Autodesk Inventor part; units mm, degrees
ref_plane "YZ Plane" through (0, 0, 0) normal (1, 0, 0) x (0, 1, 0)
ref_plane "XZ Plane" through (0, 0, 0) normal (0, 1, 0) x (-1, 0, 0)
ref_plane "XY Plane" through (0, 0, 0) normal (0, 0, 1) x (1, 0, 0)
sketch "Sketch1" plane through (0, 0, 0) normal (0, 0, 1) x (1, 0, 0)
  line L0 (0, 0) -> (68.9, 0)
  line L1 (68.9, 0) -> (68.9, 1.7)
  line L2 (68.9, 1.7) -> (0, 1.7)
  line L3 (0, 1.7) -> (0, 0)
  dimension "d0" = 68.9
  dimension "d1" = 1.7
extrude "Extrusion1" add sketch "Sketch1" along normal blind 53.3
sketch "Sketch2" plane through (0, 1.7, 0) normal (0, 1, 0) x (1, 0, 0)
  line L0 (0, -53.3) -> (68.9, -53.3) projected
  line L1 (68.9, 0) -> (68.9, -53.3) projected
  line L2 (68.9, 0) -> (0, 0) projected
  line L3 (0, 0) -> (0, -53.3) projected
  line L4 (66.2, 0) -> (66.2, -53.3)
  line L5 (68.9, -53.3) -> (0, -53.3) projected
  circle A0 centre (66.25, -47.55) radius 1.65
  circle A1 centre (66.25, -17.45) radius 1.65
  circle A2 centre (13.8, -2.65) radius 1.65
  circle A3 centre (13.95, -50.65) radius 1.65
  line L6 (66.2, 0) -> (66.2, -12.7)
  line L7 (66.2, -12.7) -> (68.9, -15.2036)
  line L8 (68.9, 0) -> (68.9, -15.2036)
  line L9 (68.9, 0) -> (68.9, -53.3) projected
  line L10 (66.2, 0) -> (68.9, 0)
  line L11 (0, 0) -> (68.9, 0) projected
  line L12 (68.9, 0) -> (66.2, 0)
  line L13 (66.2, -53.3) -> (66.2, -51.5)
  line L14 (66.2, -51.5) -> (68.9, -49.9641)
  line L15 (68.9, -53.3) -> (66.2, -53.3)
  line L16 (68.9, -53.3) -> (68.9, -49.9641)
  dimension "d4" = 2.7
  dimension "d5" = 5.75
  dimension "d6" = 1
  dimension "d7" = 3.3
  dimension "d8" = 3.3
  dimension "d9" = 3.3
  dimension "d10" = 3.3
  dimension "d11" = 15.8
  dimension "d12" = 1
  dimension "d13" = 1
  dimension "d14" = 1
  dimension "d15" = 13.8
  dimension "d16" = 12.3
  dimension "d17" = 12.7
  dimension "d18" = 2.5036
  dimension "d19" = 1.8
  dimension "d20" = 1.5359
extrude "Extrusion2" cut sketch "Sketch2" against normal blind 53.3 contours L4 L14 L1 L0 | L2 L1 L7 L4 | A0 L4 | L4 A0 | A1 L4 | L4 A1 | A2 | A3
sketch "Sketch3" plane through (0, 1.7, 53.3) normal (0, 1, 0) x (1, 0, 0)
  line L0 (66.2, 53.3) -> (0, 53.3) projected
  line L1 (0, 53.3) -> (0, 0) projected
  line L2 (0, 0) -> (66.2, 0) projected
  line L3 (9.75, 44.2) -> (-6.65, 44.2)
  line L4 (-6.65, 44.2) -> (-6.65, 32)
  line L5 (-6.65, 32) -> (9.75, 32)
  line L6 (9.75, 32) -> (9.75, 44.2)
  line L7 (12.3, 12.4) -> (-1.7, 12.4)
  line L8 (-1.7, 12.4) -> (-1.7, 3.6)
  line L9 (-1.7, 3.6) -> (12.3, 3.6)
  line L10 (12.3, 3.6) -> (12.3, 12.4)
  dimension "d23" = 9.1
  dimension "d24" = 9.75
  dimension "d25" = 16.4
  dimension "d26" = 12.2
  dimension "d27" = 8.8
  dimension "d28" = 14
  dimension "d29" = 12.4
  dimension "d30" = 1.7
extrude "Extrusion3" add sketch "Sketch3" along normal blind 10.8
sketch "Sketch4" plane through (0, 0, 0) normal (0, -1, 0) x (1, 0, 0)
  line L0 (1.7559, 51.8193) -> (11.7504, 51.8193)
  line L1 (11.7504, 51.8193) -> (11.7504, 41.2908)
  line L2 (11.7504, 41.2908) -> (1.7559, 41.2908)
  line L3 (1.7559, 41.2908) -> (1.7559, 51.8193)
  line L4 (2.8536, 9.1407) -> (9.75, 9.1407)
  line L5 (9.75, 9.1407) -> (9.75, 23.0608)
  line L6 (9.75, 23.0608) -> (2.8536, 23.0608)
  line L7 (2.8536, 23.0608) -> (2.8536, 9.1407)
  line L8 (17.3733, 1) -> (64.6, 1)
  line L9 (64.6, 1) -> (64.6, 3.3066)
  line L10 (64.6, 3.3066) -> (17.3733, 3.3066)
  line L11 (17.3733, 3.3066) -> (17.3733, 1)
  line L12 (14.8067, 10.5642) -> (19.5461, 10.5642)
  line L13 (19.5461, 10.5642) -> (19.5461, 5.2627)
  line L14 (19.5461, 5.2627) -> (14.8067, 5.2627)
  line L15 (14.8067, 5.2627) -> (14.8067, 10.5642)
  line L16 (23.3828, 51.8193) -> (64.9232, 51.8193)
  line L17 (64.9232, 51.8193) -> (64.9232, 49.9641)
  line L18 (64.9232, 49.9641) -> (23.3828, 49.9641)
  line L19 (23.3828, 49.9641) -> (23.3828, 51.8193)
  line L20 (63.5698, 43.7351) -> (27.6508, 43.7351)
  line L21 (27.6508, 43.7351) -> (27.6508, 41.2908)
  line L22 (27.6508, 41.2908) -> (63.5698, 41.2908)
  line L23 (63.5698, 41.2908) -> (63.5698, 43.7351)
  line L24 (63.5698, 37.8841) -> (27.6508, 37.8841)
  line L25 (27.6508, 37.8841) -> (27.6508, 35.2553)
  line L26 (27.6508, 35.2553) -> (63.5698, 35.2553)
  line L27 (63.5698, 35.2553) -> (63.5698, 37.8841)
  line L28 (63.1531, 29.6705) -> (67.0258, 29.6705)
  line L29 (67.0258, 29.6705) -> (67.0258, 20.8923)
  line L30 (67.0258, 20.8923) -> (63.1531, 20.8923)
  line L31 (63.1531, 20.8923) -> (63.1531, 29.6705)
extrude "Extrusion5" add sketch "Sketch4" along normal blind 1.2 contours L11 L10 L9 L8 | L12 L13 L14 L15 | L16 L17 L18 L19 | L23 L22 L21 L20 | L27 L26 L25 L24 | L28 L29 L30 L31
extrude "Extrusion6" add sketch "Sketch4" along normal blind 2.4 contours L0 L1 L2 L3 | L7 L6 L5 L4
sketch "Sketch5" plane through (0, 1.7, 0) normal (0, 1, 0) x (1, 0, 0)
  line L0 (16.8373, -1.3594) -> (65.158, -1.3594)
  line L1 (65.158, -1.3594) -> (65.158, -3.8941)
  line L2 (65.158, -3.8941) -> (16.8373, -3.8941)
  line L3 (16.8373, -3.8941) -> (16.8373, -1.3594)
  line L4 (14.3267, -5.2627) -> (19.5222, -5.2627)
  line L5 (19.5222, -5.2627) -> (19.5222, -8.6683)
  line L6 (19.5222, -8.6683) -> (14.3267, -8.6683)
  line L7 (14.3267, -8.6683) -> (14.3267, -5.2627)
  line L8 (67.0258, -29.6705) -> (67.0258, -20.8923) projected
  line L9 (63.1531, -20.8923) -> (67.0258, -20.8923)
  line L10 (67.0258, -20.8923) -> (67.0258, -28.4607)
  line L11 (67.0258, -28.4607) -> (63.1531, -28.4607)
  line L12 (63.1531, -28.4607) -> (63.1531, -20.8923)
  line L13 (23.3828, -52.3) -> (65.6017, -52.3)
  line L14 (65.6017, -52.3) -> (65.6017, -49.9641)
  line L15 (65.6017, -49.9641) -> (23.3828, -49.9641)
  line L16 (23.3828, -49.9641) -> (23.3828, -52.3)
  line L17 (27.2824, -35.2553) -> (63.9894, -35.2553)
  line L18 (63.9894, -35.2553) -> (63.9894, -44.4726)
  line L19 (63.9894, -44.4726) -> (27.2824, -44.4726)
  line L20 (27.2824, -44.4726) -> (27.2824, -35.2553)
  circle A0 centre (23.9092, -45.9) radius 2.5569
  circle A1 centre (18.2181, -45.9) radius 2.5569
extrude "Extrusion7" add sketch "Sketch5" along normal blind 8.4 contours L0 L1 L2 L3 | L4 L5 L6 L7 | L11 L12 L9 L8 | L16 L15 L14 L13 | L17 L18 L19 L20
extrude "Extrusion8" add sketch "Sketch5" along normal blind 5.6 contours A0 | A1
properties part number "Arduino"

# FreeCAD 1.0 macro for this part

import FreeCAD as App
import Part
import Sketcher
from FreeCAD import Vector
Q = App.Units.Quantity


def add_polygon(sketch, points):
    """Adds a closed chain of lines whose ends are joined by coincident constraints."""
    first, n = sketch.GeometryCount, len(points)
    for a, b in zip(points, points[1:] + points[:1]):
        sketch.addGeometry(Part.LineSegment(App.Vector(*a, 0), App.Vector(*b, 0)), False)
    for i in range(n):
        sketch.addConstraint(Sketcher.Constraint("Coincident", first + i, 2, first + (i + 1) % n, 1))

doc = App.newDocument("Part")
body = doc.addObject("PartDesign::Body", "Body")

# Sketch on XY plane
sketch1 = body.newObject("Sketcher::SketchObject", "Sketch")
sketch1.AttachmentSupport = (doc.getObject("XY_Plane"), [""])
sketch1.MapMode = "FlatFace"
add_polygon(sketch1, [(0, 1.7), (0, 0), (68.9, 0), (68.9, 1.7)])  # lines 0-3
sketch1.addConstraint(Sketcher.Constraint("Vertical", 0))
sketch1.addConstraint(Sketcher.Constraint("Horizontal", 1))
sketch1.addConstraint(Sketcher.Constraint("Vertical", 2))
sketch1.addConstraint(Sketcher.Constraint("Horizontal", 3))
sketch1.addConstraint(Sketcher.Constraint("Coincident", 0, 2, -1, 1))
sketch1.addConstraint(Sketcher.Constraint("DistanceX", 1, 1, 1, 2, Q("68.9 mm")))
sketch1.addConstraint(Sketcher.Constraint("DistanceY", 0, 2, 0, 1, Q("1.7 mm")))
pad1 = body.newObject("PartDesign::Pad", "Pad")
pad1.Profile = sketch1
pad1.Length = 53.3

# Sketch on XZ plane
sketch2 = body.newObject("Sketcher::SketchObject", "Sketch001")
sketch2.AttachmentSupport = (doc.getObject("XZ_Plane"), [""])
sketch2.MapMode = "FlatFace"
sketch2.AttachmentOffset = App.Placement(Vector(0, 0, -1.7), App.Rotation())
add_polygon(sketch2, [(66.2, 51.5), (66.2, 53.3), (68.9, 53.3), (68.9, 50)])  # lines 0-3
add_polygon(sketch2, [(68.9, 0), (66.2, 0), (66.2, 12.7), (68.9, 15.2)])  # lines 4-7
sketch2.addGeometry(Part.Circle(Vector(66.2, 47.5, 0), Vector(0, 0, 1), 1.6), False)  # 8
sketch2.addGeometry(Part.Circle(Vector(66.2, 17.4, 0), Vector(0, 0, 1), 1.6), False)  # 9
sketch2.addGeometry(Part.Circle(Vector(13.8, 2.6, 0), Vector(0, 0, 1), 1.6), False)  # 10
sketch2.addGeometry(Part.Circle(Vector(13.9, 50.6, 0), Vector(0, 0, 1), 1.6), False)  # 11
sketch2.addConstraint(Sketcher.Constraint("Vertical", 0))
sketch2.addConstraint(Sketcher.Constraint("Horizontal", 1))
sketch2.addConstraint(Sketcher.Constraint("Vertical", 2))
sketch2.addConstraint(Sketcher.Constraint("Horizontal", 4))
sketch2.addConstraint(Sketcher.Constraint("Vertical", 5))
sketch2.addConstraint(Sketcher.Constraint("Vertical", 7))
sketch2.addConstraint(Sketcher.Constraint("Equal", 8, 9))
sketch2.addConstraint(Sketcher.Constraint("Equal", 9, 10))
sketch2.addConstraint(Sketcher.Constraint("Equal", 10, 11))
sketch2.addConstraint(Sketcher.Constraint("PointOnObject", 4, 2, -1))
sketch2.addConstraint(Sketcher.Constraint("Vertical", 8, 3, 9, 3))
sketch2.addConstraint(Sketcher.Constraint("Vertical", 3, 2, 4, 2))
sketch2.addConstraint(Sketcher.Constraint("Vertical", 2, 2, 6, 2))
sketch2.addConstraint(Sketcher.Constraint("Diameter", 8, Q("3.3 mm")))
sketch2.addConstraint(Sketcher.Constraint("DistanceX", 1, 1, 1, 2, Q("2.7 mm")))
sketch2.addConstraint(Sketcher.Constraint("DistanceY", 0, 1, 0, 2, Q("1.8 mm")))
sketch2.addConstraint(Sketcher.Constraint("DistanceY", 5, 1, 5, 2, Q("12.7 mm")))
sketch2.addConstraint(Sketcher.Constraint("DistanceX", -1, 1, 10, 3, Q("13.8 mm")))
sketch2.addConstraint(Sketcher.Constraint("DistanceY", 8, 3, 0, 2, Q("5.75 mm")))
sketch2.addConstraint(Sketcher.Constraint("DistanceY", 10, 3, 11, 3, Q("48 mm")))
sketch2.addConstraint(Sketcher.Constraint("DistanceY", 2, 2, 3, 2, Q("1.536 mm")))
sketch2.addConstraint(Sketcher.Constraint("DistanceX", -1, 1, 0, 2, Q("66.2 mm")))
sketch2.addConstraint(Sketcher.Constraint("DistanceY", -1, 1, 0, 2, Q("53.3 mm")))
sketch2.addConstraint(Sketcher.Constraint("DistanceY", 9, 3, 8, 3, Q("30.1 mm")))
sketch2.addConstraint(Sketcher.Constraint("DistanceY", 10, 3, 9, 3, Q("14.8 mm")))
sketch2.addConstraint(Sketcher.Constraint("DistanceX", 11, 3, 8, 3, Q("52.3 mm")))
sketch2.addConstraint(Sketcher.Constraint("DistanceY", 5, 2, 6, 2, Q("2.5036 mm")))
sketch2.addConstraint(Sketcher.Constraint("DistanceX", -1, 1, 8, 3, Q("66.25 mm")))
pocket1 = body.newObject("PartDesign::Pocket", "Pocket")
pocket1.Profile = sketch2
pocket1.Length = 53.3
pocket1.Reversed = True

# Sketch on XZ plane
sketch3 = body.newObject("Sketcher::SketchObject", "Sketch002")
sketch3.AttachmentSupport = (doc.getObject("XZ_Plane"), [""])
sketch3.MapMode = "FlatFace"
sketch3.AttachmentOffset = App.Placement(Vector(0, 0, -1.7), App.Rotation())
add_polygon(sketch3, [(10, 9), (-7, 9), (-7, 21), (10, 21)])  # lines 0-3
add_polygon(sketch3, [(12, 41), (-2, 41), (-2, 50), (12, 50)])  # lines 4-7
sketch3.addConstraint(Sketcher.Constraint("Horizontal", 0))
sketch3.addConstraint(Sketcher.Constraint("Vertical", 1))
sketch3.addConstraint(Sketcher.Constraint("Horizontal", 2))
sketch3.addConstraint(Sketcher.Constraint("Vertical", 3))
sketch3.addConstraint(Sketcher.Constraint("Horizontal", 4))
sketch3.addConstraint(Sketcher.Constraint("Vertical", 5))
sketch3.addConstraint(Sketcher.Constraint("Horizontal", 6))
sketch3.addConstraint(Sketcher.Constraint("Vertical", 7))
sketch3.addConstraint(Sketcher.Constraint("DistanceX", 4, 2, 4, 1, Q("14 mm")))
sketch3.addConstraint(Sketcher.Constraint("DistanceX", 0, 2, 0, 1, Q("16.4 mm")))
sketch3.addConstraint(Sketcher.Constraint("DistanceY", 1, 1, 1, 2, Q("12.2 mm")))
sketch3.addConstraint(Sketcher.Constraint("DistanceY", 5, 1, 5, 2, Q("8.8 mm")))
sketch3.addConstraint(Sketcher.Constraint("DistanceY", -1, 1, 0, 2, Q("9.1 mm")))
sketch3.addConstraint(Sketcher.Constraint("DistanceX", 4, 2, -1, 1, Q("1.7 mm")))
sketch3.addConstraint(Sketcher.Constraint("DistanceX", -1, 1, 2, 2, Q("9.75 mm")))
sketch3.addConstraint(Sketcher.Constraint("DistanceY", -1, 1, 4, 2, Q("40.9 mm")))
pad2 = body.newObject("PartDesign::Pad", "Pad001")
pad2.Profile = sketch3
pad2.Length = 10.8
pad2.Reversed = True

# Sketch on XZ plane
sketch4 = body.newObject("Sketcher::SketchObject", "Sketch003")
sketch4.AttachmentSupport = (doc.getObject("XZ_Plane"), [""])
sketch4.MapMode = "FlatFace"
add_polygon(sketch4, [(17.4, 3.3), (17.4, 1), (64.6, 1), (64.6, 3.3)])  # lines 0-3
add_polygon(sketch4, [(19.5, 10.6), (14.8, 10.6), (14.8, 5.3), (19.5, 5.3)])  # lines 4-7
add_polygon(sketch4, [(64.9, 51.8), (23.4, 51.8), (23.4, 50), (64.9, 50)])  # lines 8-11
add_polygon(sketch4, [(63.6, 41.3), (63.6, 43.7), (27.7, 43.7), (27.7, 41.3)])  # lines 12-15
add_polygon(sketch4, [(63.6, 35.3), (63.6, 37.9), (27.7, 37.9), (27.7, 35.3)])  # lines 16-19
add_polygon(sketch4, [(67, 29.7), (63.2, 29.7), (63.2, 20.9), (67, 20.9)])  # lines 20-23
sketch4.addConstraint(Sketcher.Constraint("Vertical", 0))
sketch4.addConstraint(Sketcher.Constraint("Horizontal", 1))
sketch4.addConstraint(Sketcher.Constraint("Vertical", 2))
sketch4.addConstraint(Sketcher.Constraint("Horizontal", 3))
sketch4.addConstraint(Sketcher.Constraint("Horizontal", 4))
sketch4.addConstraint(Sketcher.Constraint("Vertical", 5))
sketch4.addConstraint(Sketcher.Constraint("Horizontal", 6))
sketch4.addConstraint(Sketcher.Constraint("Vertical", 7))
sketch4.addConstraint(Sketcher.Constraint("Horizontal", 8))
sketch4.addConstraint(Sketcher.Constraint("Vertical", 9))
sketch4.addConstraint(Sketcher.Constraint("Horizontal", 10))
sketch4.addConstraint(Sketcher.Constraint("Vertical", 11))
sketch4.addConstraint(Sketcher.Constraint("Vertical", 12))
sketch4.addConstraint(Sketcher.Constraint("Horizontal", 13))
sketch4.addConstraint(Sketcher.Constraint("Vertical", 14))
sketch4.addConstraint(Sketcher.Constraint("Horizontal", 15))
sketch4.addConstraint(Sketcher.Constraint("Vertical", 16))
sketch4.addConstraint(Sketcher.Constraint("Horizontal", 17))
sketch4.addConstraint(Sketcher.Constraint("Vertical", 18))
sketch4.addConstraint(Sketcher.Constraint("Horizontal", 19))
sketch4.addConstraint(Sketcher.Constraint("Horizontal", 20))
sketch4.addConstraint(Sketcher.Constraint("Vertical", 21))
sketch4.addConstraint(Sketcher.Constraint("Horizontal", 22))
sketch4.addConstraint(Sketcher.Constraint("Vertical", 23))
sketch4.addConstraint(Sketcher.Constraint("Vertical", 15, 2, 16, 2))
sketch4.addConstraint(Sketcher.Constraint("Vertical", 14, 2, 17, 2))
sketch4.addConstraint(Sketcher.Constraint("DistanceY", -1, 1, 0, 2, Q("1 mm")))
sketch4.addConstraint(Sketcher.Constraint("DistanceX", -1, 1, 1, 2, Q("64.6 mm")))
sketch4.addConstraint(Sketcher.Constraint("DistanceY", 7, 2, 9, 2, Q("39.4 mm")))
sketch4.addConstraint(Sketcher.Constraint("DistanceX", 13, 2, 13, 1, Q("35.919 mm")))
sketch4.addConstraint(Sketcher.Constraint("DistanceY", 16, 2, 10, 2, Q("12.08 mm")))
sketch4.addConstraint(Sketcher.Constraint("DistanceX", 20, 2, 10, 2, Q("1.77 mm")))
sketch4.addConstraint(Sketcher.Constraint("DistanceX", 1, 1, 1, 2, Q("47.2267 mm")))
sketch4.addConstraint(Sketcher.Constraint("DistanceX", 4, 2, 4, 1, Q("4.7394 mm")))
sketch4.addConstraint(Sketcher.Constraint("DistanceX", 8, 2, 8, 1, Q("41.5404 mm")))
sketch4.addConstraint(Sketcher.Constraint("DistanceX", 20, 2, 20, 1, Q("3.8727 mm")))
sketch4.addConstraint(Sketcher.Constraint("DistanceY", 0, 2, 0, 1, Q("2.3066 mm")))
sketch4.addConstraint(Sketcher.Constraint("DistanceY", 5, 2, 5, 1, Q("5.3015 mm")))
sketch4.addConstraint(Sketcher.Constraint("DistanceY", 9, 2, 9, 1, Q("1.8552 mm")))
sketch4.addConstraint(Sketcher.Constraint("DistanceY", 12, 1, 12, 2, Q("2.4443 mm")))
sketch4.addConstraint(Sketcher.Constraint("DistanceY", 16, 1, 16, 2, Q("2.6288 mm")))
sketch4.addConstraint(Sketcher.Constraint("DistanceY", 21, 2, 21, 1, Q("8.7782 mm")))
sketch4.addConstraint(Sketcher.Constraint("DistanceX", -1, 1, 6, 2, Q("19.546 mm")))
sketch4.addConstraint(Sketcher.Constraint("DistanceY", -1, 1, 9, 2, Q("49.964 mm")))
sketch4.addConstraint(Sketcher.Constraint("DistanceY", -1, 1, 12, 2, Q("43.735 mm")))
sketch4.addConstraint(Sketcher.Constraint("DistanceX", -1, 1, 20, 2, Q("63.153 mm")))
sketch4.addConstraint(Sketcher.Constraint("DistanceX", 9, 2, 12, 2, Q("40.187 mm")))
sketch4.addConstraint(Sketcher.Constraint("DistanceY", 21, 2, 19, 2, Q("14.363 mm")))
pad3 = body.newObject("PartDesign::Pad", "Pad002")
pad3.Profile = sketch4
pad3.Length = 1.2

# Sketch on XZ plane
sketch5 = body.newObject("Sketcher::SketchObject", "Sketch004")
sketch5.AttachmentSupport = (doc.getObject("XZ_Plane"), [""])
sketch5.MapMode = "FlatFace"
add_polygon(sketch5, [(12, 52), (2, 52), (2, 41), (12, 41)])  # lines 0-3
add_polygon(sketch5, [(3, 23), (3, 9), (10, 9), (10, 23)])  # lines 4-7
sketch5.addConstraint(Sketcher.Constraint("Horizontal", 0))
sketch5.addConstraint(Sketcher.Constraint("Vertical", 1))
sketch5.addConstraint(Sketcher.Constraint("Horizontal", 2))
sketch5.addConstraint(Sketcher.Constraint("Vertical", 3))
sketch5.addConstraint(Sketcher.Constraint("Vertical", 4))
sketch5.addConstraint(Sketcher.Constraint("Horizontal", 5))
sketch5.addConstraint(Sketcher.Constraint("Vertical", 6))
sketch5.addConstraint(Sketcher.Constraint("Horizontal", 7))
sketch5.addConstraint(Sketcher.Constraint("DistanceY", 4, 2, 4, 1, Q("13.92 mm")))
sketch5.addConstraint(Sketcher.Constraint("DistanceX", -1, 1, 5, 2, Q("9.75 mm")))
sketch5.addConstraint(Sketcher.Constraint("DistanceY", 4, 2, 1, 2, Q("32.15 mm")))
sketch5.addConstraint(Sketcher.Constraint("DistanceX", 0, 2, 0, 1, Q("9.9945 mm")))
sketch5.addConstraint(Sketcher.Constraint("DistanceX", 5, 1, 5, 2, Q("6.8964 mm")))
sketch5.addConstraint(Sketcher.Constraint("DistanceY", 1, 2, 1, 1, Q("10.5285 mm")))
sketch5.addConstraint(Sketcher.Constraint("DistanceX", -1, 1, 0, 2, Q("1.756 mm")))
sketch5.addConstraint(Sketcher.Constraint("DistanceY", -1, 1, 0, 2, Q("51.8193 mm")))
pad4 = body.newObject("PartDesign::Pad", "Pad003")
pad4.Profile = sketch5
pad4.Length = 2.4

# Sketch on XZ plane
sketch6 = body.newObject("Sketcher::SketchObject", "Sketch005")
sketch6.AttachmentSupport = (doc.getObject("XZ_Plane"), [""])
sketch6.MapMode = "FlatFace"
sketch6.AttachmentOffset = App.Placement(Vector(0, 0, -1.7), App.Rotation())
add_polygon(sketch6, [(65.2, 1.4), (16.8, 1.4), (16.8, 3.9), (65.2, 3.9)])  # lines 0-3
add_polygon(sketch6, [(19.5, 5.3), (14.3, 5.3), (14.3, 8.7), (19.5, 8.7)])  # lines 4-7
add_polygon(sketch6, [(63.2, 28.5), (67, 28.5), (67, 20.9), (63.2, 20.9)])  # lines 8-11
add_polygon(sketch6, [(23.4, 50), (23.4, 52.3), (65.6, 52.3), (65.6, 50)])  # lines 12-15
add_polygon(sketch6, [(64, 35.3), (27.3, 35.3), (27.3, 44.5), (64, 44.5)])  # lines 16-19
sketch6.addConstraint(Sketcher.Constraint("Horizontal", 0))
sketch6.addConstraint(Sketcher.Constraint("Vertical", 1))
sketch6.addConstraint(Sketcher.Constraint("Horizontal", 2))
sketch6.addConstraint(Sketcher.Constraint("Vertical", 3))
sketch6.addConstraint(Sketcher.Constraint("Horizontal", 4))
sketch6.addConstraint(Sketcher.Constraint("Vertical", 5))
sketch6.addConstraint(Sketcher.Constraint("Horizontal", 6))
sketch6.addConstraint(Sketcher.Constraint("Vertical", 7))
sketch6.addConstraint(Sketcher.Constraint("Horizontal", 8))
sketch6.addConstraint(Sketcher.Constraint("Vertical", 9))
sketch6.addConstraint(Sketcher.Constraint("Horizontal", 10))
sketch6.addConstraint(Sketcher.Constraint("Vertical", 11))
sketch6.addConstraint(Sketcher.Constraint("Vertical", 12))
sketch6.addConstraint(Sketcher.Constraint("Horizontal", 13))
sketch6.addConstraint(Sketcher.Constraint("Vertical", 14))
sketch6.addConstraint(Sketcher.Constraint("Horizontal", 15))
sketch6.addConstraint(Sketcher.Constraint("Horizontal", 16))
sketch6.addConstraint(Sketcher.Constraint("Vertical", 17))
sketch6.addConstraint(Sketcher.Constraint("Horizontal", 18))
sketch6.addConstraint(Sketcher.Constraint("Vertical", 19))
sketch6.addConstraint(Sketcher.Constraint("DistanceY", -1, 1, 12, 2, Q("52.3 mm")))
sketch6.addConstraint(Sketcher.Constraint("DistanceX", 13, 1, 13, 2, Q("42.219 mm")))
sketch6.addConstraint(Sketcher.Constraint("DistanceX", 16, 2, 16, 1, Q("36.707 mm")))
sketch6.addConstraint(Sketcher.Constraint("DistanceY", 12, 1, 12, 2, Q("2.336 mm")))
sketch6.addConstraint(Sketcher.Constraint("DistanceX", 0, 2, 0, 1, Q("48.3207 mm")))
sketch6.addConstraint(Sketcher.Constraint("DistanceX", 4, 2, 4, 1, Q("5.1955 mm")))
sketch6.addConstraint(Sketcher.Constraint("DistanceX", 8, 1, 8, 2, Q("3.8727 mm")))
sketch6.addConstraint(Sketcher.Constraint("DistanceY", 1, 1, 1, 2, Q("2.5347 mm")))
sketch6.addConstraint(Sketcher.Constraint("DistanceY", 5, 1, 5, 2, Q("3.4056 mm")))
sketch6.addConstraint(Sketcher.Constraint("DistanceY", 9, 2, 9, 1, Q("7.5684 mm")))
sketch6.addConstraint(Sketcher.Constraint("DistanceY", 17, 1, 17, 2, Q("9.2173 mm")))
sketch6.addConstraint(Sketcher.Constraint("DistanceY", -1, 1, 1, 2, Q("3.894 mm")))
sketch6.addConstraint(Sketcher.Constraint("DistanceX", -1, 1, 2, 2, Q("65.158 mm")))
sketch6.addConstraint(Sketcher.Constraint("DistanceX", -1, 1, 10, 2, Q("63.153 mm")))
sketch6.addConstraint(Sketcher.Constraint("DistanceY", 0, 2, 5, 2, Q("7.309 mm")))
sketch6.addConstraint(Sketcher.Constraint("DistanceX", 1, 2, 6, 2, Q("2.685 mm")))
sketch6.addConstraint(Sketcher.Constraint("DistanceY", 7, 2, 8, 2, Q("23.198 mm")))
sketch6.addConstraint(Sketcher.Constraint("DistanceX", 5, 2, 12, 2, Q("9.056 mm")))
sketch6.addConstraint(Sketcher.Constraint("DistanceY", 6, 2, 16, 2, Q("26.587 mm")))
sketch6.addConstraint(Sketcher.Constraint("DistanceX", -1, 1, 16, 2, Q("27.2824 mm")))
pad5 = body.newObject("PartDesign::Pad", "Pad004")
pad5.Profile = sketch6
pad5.Length = 8.4
pad5.Reversed = True

# Sketch on XZ plane
sketch7 = body.newObject("Sketcher::SketchObject", "Sketch006")
sketch7.AttachmentSupport = (doc.getObject("XZ_Plane"), [""])
sketch7.MapMode = "FlatFace"
sketch7.AttachmentOffset = App.Placement(Vector(0, 0, -1.7), App.Rotation())
sketch7.addGeometry(Part.Circle(Vector(23.9, 45.9, 0), Vector(0, 0, 1), 2.6), False)
sketch7.addGeometry(Part.Circle(Vector(18.2, 45.9, 0), Vector(0, 0, 1), 2.6), False)
sketch7.addConstraint(Sketcher.Constraint("Equal", 0, 1))
sketch7.addConstraint(Sketcher.Constraint("Horizontal", 0, 3, 1, 3))
sketch7.addConstraint(Sketcher.Constraint("Diameter", 0, Q("5.1138 mm")))
sketch7.addConstraint(Sketcher.Constraint("DistanceY", -1, 1, 0, 3, Q("45.9 mm")))
sketch7.addConstraint(Sketcher.Constraint("DistanceX", -1, 1, 1, 3, Q("18.218 mm")))
sketch7.addConstraint(Sketcher.Constraint("DistanceX", 1, 3, 0, 3, Q("5.691 mm")))
pad6 = body.newObject("PartDesign::Pad", "Pad005")
pad6.Profile = sketch7
pad6.Length = 5.6
pad6.Reversed = True

doc.recompute()
